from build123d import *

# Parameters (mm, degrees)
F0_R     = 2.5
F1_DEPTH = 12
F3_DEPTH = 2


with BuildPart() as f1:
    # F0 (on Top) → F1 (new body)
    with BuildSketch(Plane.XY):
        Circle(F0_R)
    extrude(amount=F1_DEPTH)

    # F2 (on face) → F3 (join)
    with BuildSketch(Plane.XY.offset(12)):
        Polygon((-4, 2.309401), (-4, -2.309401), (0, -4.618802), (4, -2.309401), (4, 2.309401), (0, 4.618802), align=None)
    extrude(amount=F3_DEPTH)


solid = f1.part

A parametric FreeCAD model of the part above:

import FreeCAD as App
import Part
import Sketcher
Q = App.Units.Quantity


def add_polygon(sketch, points):
    """Adds a closed chain of lines whose ends are joined by coincident constraints."""
    first, n = sketch.GeometryCount, len(points)
    for a, b in zip(points, points[1:] + points[:1]):
        sketch.addGeometry(Part.LineSegment(App.Vector(*a, 0), App.Vector(*b, 0)), False)
    for i in range(n):
        sketch.addConstraint(Sketcher.Constraint("Coincident", first + i, 2, first + (i + 1) % n, 1))

doc = App.newDocument("Part")
params = doc.addObject("Spreadsheet::Sheet", "Params")
for row, (alias, value) in enumerate([
    ("sketch1_diameter", "5 mm"),
    ("pad1_length", "12 mm"),
    ("pad2_length", "2 mm"),
], start=1):
    params.set(f"A{row}", alias)
    params.set(f"B{row}", "=" + value)
    params.setAlias(f"B{row}", alias)

body = doc.addObject("PartDesign::Body", "Body")

# Sketch on XY plane
sketch1 = body.newObject("Sketcher::SketchObject", "Sketch")
sketch1.AttachmentSupport = (doc.getObject("XY_Plane"), [""])
sketch1.MapMode = "FlatFace"
sketch1.addGeometry(Part.Circle(App.Vector(0, 0, 0), App.Vector(0, 0, 1), 2.5), False)
sketch1.addConstraint([
    Sketcher.Constraint("Coincident", 0, 3, -1, 1),
    Sketcher.Constraint("Diameter", 0, Q("5 mm")),
])
sketch1.setExpression("Constraints[1]", "Params.sketch1_diameter")
pad1 = body.newObject("PartDesign::Pad", "Pad")
pad1.Profile = sketch1
pad1.setExpression("Length", "Params.pad1_length")

# Sketch on XY plane
sketch2 = body.newObject("Sketcher::SketchObject", "Sketch001")
sketch2.AttachmentSupport = (doc.getObject("XY_Plane"), [""])
sketch2.MapMode = "FlatFace"
sketch2.AttachmentOffset = App.Placement(App.Vector(0, 0, 12), App.Rotation())
add_polygon(sketch2, [(-4, 2.3), (-4, -2.3), (0, -4.6), (4, -2.3), (4, 2.3), (0, 4.6)])  # lines 0-5
sketch2.addConstraint([
    Sketcher.Constraint("Vertical", 0),
    Sketcher.Constraint("Vertical", 3),
    Sketcher.Constraint("Symmetric", 0, 2, 3, 2, -1, 1),
    Sketcher.Constraint("Symmetric", 1, 2, 4, 2, -1, 1),
    Sketcher.Constraint("PointOnObject", 1, 2, -2),
    Sketcher.Constraint("Parallel", 2, 5),
    Sketcher.Constraint("Horizontal", 0, 2, 2, 2),
    Sketcher.Constraint("Angle", 1, Q("-29.999999 deg")),
    Sketcher.Constraint("DistanceX", 0, 2, -1, 1, Q("4 mm")),
    Sketcher.Constraint("DistanceY", 0, 2, 0, 1, Q("4.618802 mm")),
])
pad2 = body.newObject("PartDesign::Pad", "Pad001")
pad2.Profile = sketch2
pad2.setExpression("Length", "Params.pad2_length")

doc.recompute()
